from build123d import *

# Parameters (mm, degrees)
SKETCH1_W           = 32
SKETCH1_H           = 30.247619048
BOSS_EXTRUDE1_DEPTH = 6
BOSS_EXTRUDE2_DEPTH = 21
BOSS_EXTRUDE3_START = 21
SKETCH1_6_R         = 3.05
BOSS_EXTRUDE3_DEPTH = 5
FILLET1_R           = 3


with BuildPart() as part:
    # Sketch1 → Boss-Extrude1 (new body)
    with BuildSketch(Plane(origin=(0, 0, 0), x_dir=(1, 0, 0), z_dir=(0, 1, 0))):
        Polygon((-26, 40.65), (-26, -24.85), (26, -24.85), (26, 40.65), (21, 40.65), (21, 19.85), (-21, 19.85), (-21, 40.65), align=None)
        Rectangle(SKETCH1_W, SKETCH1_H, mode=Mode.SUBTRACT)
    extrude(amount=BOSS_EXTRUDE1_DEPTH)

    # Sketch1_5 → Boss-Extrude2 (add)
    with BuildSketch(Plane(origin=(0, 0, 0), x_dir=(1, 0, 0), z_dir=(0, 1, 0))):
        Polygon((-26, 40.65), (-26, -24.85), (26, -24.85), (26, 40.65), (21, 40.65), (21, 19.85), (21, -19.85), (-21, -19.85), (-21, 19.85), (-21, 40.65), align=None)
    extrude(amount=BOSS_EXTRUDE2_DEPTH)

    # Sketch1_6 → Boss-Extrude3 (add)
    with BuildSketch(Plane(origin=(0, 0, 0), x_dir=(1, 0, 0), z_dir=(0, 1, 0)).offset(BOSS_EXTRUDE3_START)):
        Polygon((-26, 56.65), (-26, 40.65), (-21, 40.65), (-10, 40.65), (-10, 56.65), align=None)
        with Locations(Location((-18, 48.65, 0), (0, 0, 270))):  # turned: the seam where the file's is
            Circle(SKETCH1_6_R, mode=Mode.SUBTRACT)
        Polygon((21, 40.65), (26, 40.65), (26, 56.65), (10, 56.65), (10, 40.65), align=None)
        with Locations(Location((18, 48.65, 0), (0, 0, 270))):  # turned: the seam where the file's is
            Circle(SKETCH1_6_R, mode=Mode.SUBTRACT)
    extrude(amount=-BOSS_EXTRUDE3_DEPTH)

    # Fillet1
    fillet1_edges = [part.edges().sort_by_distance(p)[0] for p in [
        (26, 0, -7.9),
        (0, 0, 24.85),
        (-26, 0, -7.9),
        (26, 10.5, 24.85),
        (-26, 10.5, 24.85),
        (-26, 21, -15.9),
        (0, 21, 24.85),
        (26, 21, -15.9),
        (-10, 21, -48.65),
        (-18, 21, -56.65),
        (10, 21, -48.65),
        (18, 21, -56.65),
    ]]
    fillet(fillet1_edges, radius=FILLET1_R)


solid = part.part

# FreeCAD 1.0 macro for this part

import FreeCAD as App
import Part
import Sketcher
from FreeCAD import Vector


def edges_at(feature, points):
    """Names of the edges that pass closest to the given points."""
    edges = feature.Shape.Edges
    near = lambda p: min(range(len(edges)), key=lambda i: edges[i].distToShape(Part.Vertex(*p))[0])
    return sorted({f"Edge{near(p) + 1}" for p in points})


def add_polygon(sketch, points):
    """Adds a closed chain of lines whose ends are joined by coincident constraints."""
    first, n = sketch.GeometryCount, len(points)
    for a, b in zip(points, points[1:] + points[:1]):
        sketch.addGeometry(Part.LineSegment(App.Vector(*a, 0), App.Vector(*b, 0)), False)
    for i in range(n):
        sketch.addConstraint(Sketcher.Constraint("Coincident", first + i, 2, first + (i + 1) % n, 1))

doc = App.newDocument("Part")
body = doc.addObject("PartDesign::Body", "Body")

# Sketch on XZ plane
sketch1 = doc.addObject("Sketcher::SketchObject", "Sketch")
body.addObject(sketch1)
sketch1.AttachmentSupport = (doc.XZ_Plane, [""])
sketch1.MapMode = "FlatFace"
add_polygon(sketch1, [(-26, -41), (-26, 25), (26, 25), (26, -41), (21, -41), (21, -20), (-21, -20), (-21, -41)])  # lines 0-7
add_polygon(sketch1, [(16, 15), (-16, 15), (-16, -15), (16, -15)])  # lines 8-11
sketch1.addConstraint(Sketcher.Constraint("Vertical", 0))
sketch1.addConstraint(Sketcher.Constraint("Horizontal", 1))
sketch1.addConstraint(Sketcher.Constraint("Vertical", 2))
sketch1.addConstraint(Sketcher.Constraint("Horizontal", 3))
sketch1.addConstraint(Sketcher.Constraint("Vertical", 4))
sketch1.addConstraint(Sketcher.Constraint("Horizontal", 5))
sketch1.addConstraint(Sketcher.Constraint("Vertical", 6))
sketch1.addConstraint(Sketcher.Constraint("Horizontal", 7))
sketch1.addConstraint(Sketcher.Constraint("Horizontal", 8))
sketch1.addConstraint(Sketcher.Constraint("Vertical", 9))
sketch1.addConstraint(Sketcher.Constraint("Horizontal", 10))
sketch1.addConstraint(Sketcher.Constraint("Vertical", 11))
sketch1.addConstraint(Sketcher.Constraint("Symmetric", 8, 2, 10, 2, -1, 1))
sketch1.addConstraint(Sketcher.Constraint("Symmetric", 3, 2, 6, 2, -2))
sketch1.addConstraint(Sketcher.Constraint("Equal", 3, 7))
sketch1.addConstraint(Sketcher.Constraint("DistanceX", 1, 1, 1, 2, 52.0))
sketch1.addConstraint(Sketcher.Constraint("DistanceX", 3, 2, 3, 1, 5.0))
sketch1.addConstraint(Sketcher.Constraint("DistanceX", 8, 2, 8, 1, 32.0))
sketch1.addConstraint(Sketcher.Constraint("DistanceY", 0, 1, 0, 2, 65.5))
sketch1.addConstraint(Sketcher.Constraint("DistanceY", 4, 1, 4, 2, 20.8))
sketch1.addConstraint(Sketcher.Constraint("DistanceY", -1, 1, 0, 2, 24.85))
sketch1.addConstraint(Sketcher.Constraint("DistanceY", 9, 2, 9, 1, 30.247619))
pad1 = doc.addObject("PartDesign::Pad", "Pad")
body.addObject(pad1)
pad1.Profile = sketch1
pad1.Length = 6
pad1.Reversed = True

# Sketch on XZ plane
sketch2 = doc.addObject("Sketcher::SketchObject", "Sketch001")
body.addObject(sketch2)
sketch2.AttachmentSupport = (doc.XZ_Plane, [""])
sketch2.MapMode = "FlatFace"
add_polygon(sketch2, [(-26, -41), (-26, 25), (26, 25), (26, -41), (21, -41), (21, 20), (-21, 20), (-21, -41)])  # lines 0-7
sketch2.addConstraint(Sketcher.Constraint("Vertical", 0))
sketch2.addConstraint(Sketcher.Constraint("Horizontal", 1))
sketch2.addConstraint(Sketcher.Constraint("Vertical", 2))
sketch2.addConstraint(Sketcher.Constraint("Horizontal", 3))
sketch2.addConstraint(Sketcher.Constraint("Vertical", 4))
sketch2.addConstraint(Sketcher.Constraint("Horizontal", 5))
sketch2.addConstraint(Sketcher.Constraint("Vertical", 6))
sketch2.addConstraint(Sketcher.Constraint("Horizontal", 7))
sketch2.addConstraint(Sketcher.Constraint("Symmetric", 3, 2, 6, 2, -2))
sketch2.addConstraint(Sketcher.Constraint("Equal", 3, 7))
sketch2.addConstraint(Sketcher.Constraint("DistanceX", 1, 1, 1, 2, 52.0))
sketch2.addConstraint(Sketcher.Constraint("DistanceX", 3, 2, 3, 1, 5.0))
sketch2.addConstraint(Sketcher.Constraint("DistanceY", 0, 1, 0, 2, 65.5))
sketch2.addConstraint(Sketcher.Constraint("DistanceY", 4, 1, 4, 2, 60.5))
sketch2.addConstraint(Sketcher.Constraint("DistanceY", -1, 1, 0, 2, 24.85))
pad2 = doc.addObject("PartDesign::Pad", "Pad001")
body.addObject(pad2)
pad2.Profile = sketch2
pad2.Length = 21
pad2.Reversed = True

# Sketch on XZ plane
sketch3 = doc.addObject("Sketcher::SketchObject", "Sketch002")
body.addObject(sketch3)
sketch3.AttachmentSupport = (doc.XZ_Plane, [""])
sketch3.MapMode = "FlatFace"
sketch3.AttachmentOffset = App.Placement(Vector(0, 0, -21), App.Rotation())
add_polygon(sketch3, [(-26, -56.6), (-26, -40.6), (-10, -40.6), (-10, -56.6)])  # lines 0-3
sketch3.addGeometry(Part.Circle(Vector(-18, -48.6, 0), Vector(0, 0, 1), 3), False)  # 4
add_polygon(sketch3, [(26, -40.6), (26, -56.6), (10, -56.6), (10, -40.6)])  # lines 5-8
sketch3.addGeometry(Part.Circle(Vector(18, -48.6, 0), Vector(0, 0, 1), 3), False)  # 9
sketch3.addConstraint(Sketcher.Constraint("Vertical", 0))
sketch3.addConstraint(Sketcher.Constraint("Horizontal", 1))
sketch3.addConstraint(Sketcher.Constraint("Vertical", 2))
sketch3.addConstraint(Sketcher.Constraint("Horizontal", 3))
sketch3.addConstraint(Sketcher.Constraint("Vertical", 5))
sketch3.addConstraint(Sketcher.Constraint("Horizontal", 6))
sketch3.addConstraint(Sketcher.Constraint("Vertical", 7))
sketch3.addConstraint(Sketcher.Constraint("Horizontal", 8))
sketch3.addConstraint(Sketcher.Constraint("Equal", 4, 9))
sketch3.addConstraint(Sketcher.Constraint("Symmetric", 4, 3, 9, 3, -2))
sketch3.addConstraint(Sketcher.Constraint("Symmetric", 3, 2, 5, 2, -2))
sketch3.addConstraint(Sketcher.Constraint("Symmetric", 1, 2, 7, 2, -2))
sketch3.addConstraint(Sketcher.Constraint("Equal", 8, 0))
sketch3.addConstraint(Sketcher.Constraint("Diameter", 4, 6.1))
sketch3.addConstraint(Sketcher.Constraint("DistanceX", 1, 1, 1, 2, 16.0))
sketch3.addConstraint(Sketcher.Constraint("DistanceX", 4, 3, -1, 1, 18.0))
sketch3.addConstraint(Sketcher.Constraint("DistanceX", 0, 2, -1, 1, 26.0))
sketch3.addConstraint(Sketcher.Constraint("DistanceY", 4, 3, 0, 2, 8.0))
sketch3.addConstraint(Sketcher.Constraint("DistanceY", 4, 3, -1, 1, 48.65))
pad3 = doc.addObject("PartDesign::Pad", "Pad002")
body.addObject(pad3)
pad3.Profile = sketch3
pad3.Length = 5
doc.recompute()

fillet = doc.addObject("PartDesign::Fillet", "Fillet")
body.addObject(fillet)
fillet.Base = (pad3, edges_at(pad3, [
    (26, 0, -7.9),
    (0, 0, 24.85),
    (-26, 0, -7.9),
    (26, 10.5, 24.85),
    (-26, 10.5, 24.85),
    (-26, 21, -15.9),
    (0, 21, 24.85),
    (26, 21, -15.9),
    (-10, 21, -48.65),
    (-18, 21, -56.65),
    (10, 21, -48.65),
    (18, 21, -56.65),
]))
fillet.Radius = 3

doc.recompute()
